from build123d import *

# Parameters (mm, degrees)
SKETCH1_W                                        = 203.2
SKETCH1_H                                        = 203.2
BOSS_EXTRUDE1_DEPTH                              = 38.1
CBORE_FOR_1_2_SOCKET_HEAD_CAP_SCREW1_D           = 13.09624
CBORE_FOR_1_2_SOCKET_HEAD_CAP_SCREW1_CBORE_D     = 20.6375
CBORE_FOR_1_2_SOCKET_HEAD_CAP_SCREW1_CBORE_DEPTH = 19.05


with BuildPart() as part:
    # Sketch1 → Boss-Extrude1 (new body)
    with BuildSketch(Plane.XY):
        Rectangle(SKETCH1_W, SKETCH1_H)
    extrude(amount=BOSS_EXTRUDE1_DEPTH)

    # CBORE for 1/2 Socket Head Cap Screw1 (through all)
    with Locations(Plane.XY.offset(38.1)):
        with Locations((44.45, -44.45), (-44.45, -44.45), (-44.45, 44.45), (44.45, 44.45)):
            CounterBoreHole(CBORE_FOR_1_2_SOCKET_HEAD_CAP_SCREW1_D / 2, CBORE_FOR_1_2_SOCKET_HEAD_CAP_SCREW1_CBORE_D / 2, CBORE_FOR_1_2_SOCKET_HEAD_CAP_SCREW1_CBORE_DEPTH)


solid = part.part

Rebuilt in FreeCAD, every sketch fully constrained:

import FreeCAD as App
import Part
import Sketcher
from FreeCAD import Vector
Q = App.Units.Quantity


def add_polygon(sketch, points):
    """Adds a closed chain of lines whose ends are joined by coincident constraints."""
    first, n = sketch.GeometryCount, len(points)
    for a, b in zip(points, points[1:] + points[:1]):
        sketch.addGeometry(Part.LineSegment(App.Vector(*a, 0), App.Vector(*b, 0)), False)
    for i in range(n):
        sketch.addConstraint(Sketcher.Constraint("Coincident", first + i, 2, first + (i + 1) % n, 1))

doc = App.newDocument("Part")
body = doc.addObject("PartDesign::Body", "Body")

sketch1 = doc.addObject("Sketcher::SketchObject", "Sketch")
body.addObject(sketch1)
sketch1.AttachmentSupport = (doc.XY_Plane, [""])
sketch1.MapMode = "FlatFace"
add_polygon(sketch1, [(-102, 102), (-102, -102), (102, -102), (102, 102)])
sketch1.addConstraint(Sketcher.Constraint("Vertical", 0))
sketch1.addConstraint(Sketcher.Constraint("Horizontal", 1))
sketch1.addConstraint(Sketcher.Constraint("Vertical", 2))
sketch1.addConstraint(Sketcher.Constraint("Horizontal", 3))
sketch1.addConstraint(Sketcher.Constraint("Symmetric", 0, 2, 2, 2, -1, 1))
sketch1.addConstraint(Sketcher.Constraint("Equal", 3, 0))
sketch1.addConstraint(Sketcher.Constraint("DistanceX", 1, 1, 1, 2, Q("8 in")))
pad1 = doc.addObject("PartDesign::Pad", "Pad")
body.addObject(pad1)
pad1.Profile = sketch1
pad1.Length = Q("1.5 in")

sketch2 = doc.addObject("Sketcher::SketchObject", "Sketch001")
body.addObject(sketch2)
sketch2.AttachmentSupport = (doc.XY_Plane, [""])
sketch2.MapMode = "FlatFace"
sketch2.AttachmentOffset = App.Placement(Vector(0, 0, 1.5 * 25.4), App.Rotation())
sketch2.addGeometry(Part.Circle(Vector(44, -44, 0), Vector(0, 0, 1), 7), False)
sketch2.addGeometry(Part.Circle(Vector(-44, -44, 0), Vector(0, 0, 1), 7), False)
sketch2.addGeometry(Part.Circle(Vector(-44, 44, 0), Vector(0, 0, 1), 7), False)
sketch2.addGeometry(Part.Circle(Vector(44, 44, 0), Vector(0, 0, 1), 7), False)
sketch2.addConstraint(Sketcher.Constraint("Equal", 0, 1))
sketch2.addConstraint(Sketcher.Constraint("Equal", 1, 2))
sketch2.addConstraint(Sketcher.Constraint("Equal", 2, 3))
sketch2.addConstraint(Sketcher.Constraint("Symmetric", 0, 3, 2, 3, -1, 1))
sketch2.addConstraint(Sketcher.Constraint("Symmetric", 1, 3, 3, 3, -1, 1))
sketch2.addConstraint(Sketcher.Constraint("Symmetric", 0, 3, 1, 3, -2))
sketch2.addConstraint(Sketcher.Constraint("Diameter", 0, Q("0.5156 in")))
sketch2.addConstraint(Sketcher.Constraint("DistanceX", 1, 3, 0, 3, Q("3.5 in")))
sketch2.addConstraint(Sketcher.Constraint("DistanceY", 1, 3, 2, 3, Q("3.5 in")))
doc.recompute()
hole = doc.addObject("PartDesign::Hole", "Hole")
body.addObject(hole)
hole.Profile = sketch2
hole.ThreadType = "None"
hole.Diameter = Q("0.5156 in")
hole.DepthType = "ThroughAll"
hole.HoleCutType = "Counterbore"
hole.HoleCutDiameter = Q("0.8125 in")
hole.HoleCutDepth = Q("0.75 in")

doc.recompute()
